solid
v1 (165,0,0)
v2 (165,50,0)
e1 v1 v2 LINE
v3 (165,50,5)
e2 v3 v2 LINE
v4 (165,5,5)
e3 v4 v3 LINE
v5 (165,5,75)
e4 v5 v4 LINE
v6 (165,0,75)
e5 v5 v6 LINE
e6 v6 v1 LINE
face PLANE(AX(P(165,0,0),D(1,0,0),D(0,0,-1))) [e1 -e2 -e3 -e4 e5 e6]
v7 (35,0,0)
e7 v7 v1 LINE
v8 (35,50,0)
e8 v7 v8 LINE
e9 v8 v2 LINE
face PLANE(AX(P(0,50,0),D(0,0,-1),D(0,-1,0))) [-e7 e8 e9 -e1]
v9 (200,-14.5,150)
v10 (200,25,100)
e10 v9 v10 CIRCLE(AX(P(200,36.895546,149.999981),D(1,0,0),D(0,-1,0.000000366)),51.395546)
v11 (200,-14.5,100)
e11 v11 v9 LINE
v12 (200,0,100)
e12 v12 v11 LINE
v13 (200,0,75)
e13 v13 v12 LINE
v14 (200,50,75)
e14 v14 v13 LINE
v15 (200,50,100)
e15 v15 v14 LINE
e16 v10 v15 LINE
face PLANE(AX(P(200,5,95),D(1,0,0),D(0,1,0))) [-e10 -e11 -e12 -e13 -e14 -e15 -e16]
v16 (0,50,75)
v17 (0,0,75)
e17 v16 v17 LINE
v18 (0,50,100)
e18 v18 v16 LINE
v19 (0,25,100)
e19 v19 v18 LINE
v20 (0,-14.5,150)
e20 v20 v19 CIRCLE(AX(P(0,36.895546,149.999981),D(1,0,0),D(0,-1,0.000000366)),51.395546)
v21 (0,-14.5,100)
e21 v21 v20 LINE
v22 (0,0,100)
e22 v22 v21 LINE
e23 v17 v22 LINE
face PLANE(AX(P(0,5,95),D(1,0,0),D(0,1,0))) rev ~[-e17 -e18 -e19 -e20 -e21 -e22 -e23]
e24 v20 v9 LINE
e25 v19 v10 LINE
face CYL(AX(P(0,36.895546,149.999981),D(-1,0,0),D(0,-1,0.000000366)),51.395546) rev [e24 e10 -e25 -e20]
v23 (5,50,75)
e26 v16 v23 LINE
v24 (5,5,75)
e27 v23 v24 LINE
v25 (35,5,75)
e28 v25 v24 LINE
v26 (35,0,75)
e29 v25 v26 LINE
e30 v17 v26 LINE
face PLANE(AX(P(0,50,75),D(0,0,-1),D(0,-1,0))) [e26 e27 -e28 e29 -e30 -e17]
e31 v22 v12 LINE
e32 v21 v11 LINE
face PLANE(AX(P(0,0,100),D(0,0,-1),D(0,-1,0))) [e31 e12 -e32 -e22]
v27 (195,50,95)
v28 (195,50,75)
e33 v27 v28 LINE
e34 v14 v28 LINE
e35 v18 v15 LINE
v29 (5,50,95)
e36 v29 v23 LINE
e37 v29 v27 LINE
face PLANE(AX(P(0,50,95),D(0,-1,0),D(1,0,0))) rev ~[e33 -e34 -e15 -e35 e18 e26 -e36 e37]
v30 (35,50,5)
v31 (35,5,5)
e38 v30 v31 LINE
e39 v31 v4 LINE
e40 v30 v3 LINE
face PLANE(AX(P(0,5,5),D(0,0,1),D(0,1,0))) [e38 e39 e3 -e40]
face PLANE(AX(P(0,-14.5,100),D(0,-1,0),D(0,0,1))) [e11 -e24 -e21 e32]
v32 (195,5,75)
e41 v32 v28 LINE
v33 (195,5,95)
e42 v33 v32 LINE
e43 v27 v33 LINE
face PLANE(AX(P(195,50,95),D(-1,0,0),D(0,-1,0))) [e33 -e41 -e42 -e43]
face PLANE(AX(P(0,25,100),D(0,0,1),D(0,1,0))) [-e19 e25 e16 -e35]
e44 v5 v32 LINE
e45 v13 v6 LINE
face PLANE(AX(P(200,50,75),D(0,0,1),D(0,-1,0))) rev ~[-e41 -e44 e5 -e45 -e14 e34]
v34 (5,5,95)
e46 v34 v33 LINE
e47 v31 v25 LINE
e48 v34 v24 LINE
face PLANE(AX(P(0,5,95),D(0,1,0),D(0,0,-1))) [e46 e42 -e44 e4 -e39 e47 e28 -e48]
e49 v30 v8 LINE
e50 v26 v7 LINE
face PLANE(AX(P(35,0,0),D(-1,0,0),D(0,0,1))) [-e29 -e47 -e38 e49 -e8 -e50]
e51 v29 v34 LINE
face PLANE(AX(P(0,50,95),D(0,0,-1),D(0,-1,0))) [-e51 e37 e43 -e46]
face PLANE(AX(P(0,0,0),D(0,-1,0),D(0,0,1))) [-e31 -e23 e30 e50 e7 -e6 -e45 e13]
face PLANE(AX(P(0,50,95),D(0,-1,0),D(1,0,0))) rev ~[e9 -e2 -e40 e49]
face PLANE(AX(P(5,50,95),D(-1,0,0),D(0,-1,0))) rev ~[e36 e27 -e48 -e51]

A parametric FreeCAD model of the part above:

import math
import FreeCAD as App
import Part
import Sketcher
Q = App.Units.Quantity

doc = App.newDocument("Part")
params = doc.addObject("Spreadsheet::Sheet", "Params")
for row, (alias, value) in enumerate([
    ("sketch1_width", "50 mm"),
    ("sketch1_width2", "45 mm"),
    ("sketch1_height", "90 mm"),
    ("sketch1_width3", "14.5 mm"),
    ("sketch1_width4", "25 mm"),
    ("pad1_length", "200 mm"),
    ("sketch2_width", "5 mm"),
    ("sketch2_height", "45 mm"),
    ("pad2_length", "90 mm"),
    ("sketch3_width", "5 mm"),
    ("sketch3_height", "45 mm"),
    ("pad3_length", "90 mm"),
    ("sketch4_height", "75 mm"),
    ("sketch4_width", "50 mm"),
    ("pocket1_length", "35 mm"),
    ("sketch5_height", "75 mm"),
    ("sketch5_width", "50 mm"),
    ("pocket2_length", "35 mm"),
], start=1):
    params.set(f"A{row}", alias)
    params.set(f"B{row}", "=" + value)
    params.setAlias(f"B{row}", alias)

body = doc.addObject("PartDesign::Body", "Body")

sketch1 = body.newObject("Sketcher::SketchObject", "Sketch")
sketch1.AttachmentSupport = (doc.getObject("YZ_Plane"), [""])
sketch1.MapMode = "FlatFace"
sketch1.addGeometry([
    Part.LineSegment(App.Vector(0, 100, 0), App.Vector(0, 0, 0)),
    Part.LineSegment(App.Vector(0, 0, 0), App.Vector(50, 0, 0)),
    Part.LineSegment(App.Vector(50, 0, 0), App.Vector(50, 5, 0)),
    Part.LineSegment(App.Vector(50, 5, 0), App.Vector(5, 5, 0)),
    Part.LineSegment(App.Vector(5, 5, 0), App.Vector(5, 95, 0)),
    Part.LineSegment(App.Vector(5, 95, 0), App.Vector(50, 95, 0)),
    Part.LineSegment(App.Vector(50, 95, 0), App.Vector(50, 100, 0)),
    Part.LineSegment(App.Vector(50, 100, 0), App.Vector(25, 100, 0)),
    Part.ArcOfCircle(Part.Circle(App.Vector(36.8956, 150, 0), App.Vector(0, 0, 1), 51.3956), math.radians(180), math.radians(256.617438)),
    Part.LineSegment(App.Vector(-14.5, 150, 0), App.Vector(-14.5, 100, 0)),
    Part.LineSegment(App.Vector(-14.5, 100, 0), App.Vector(0, 100, 0)),
], False)
sketch1.addConstraint([
    Sketcher.Constraint("Coincident", 0, 2, 1, 1),
    Sketcher.Constraint("Coincident", 1, 2, 2, 1),
    Sketcher.Constraint("Coincident", 2, 2, 3, 1),
    Sketcher.Constraint("Coincident", 3, 2, 4, 1),
    Sketcher.Constraint("Coincident", 4, 2, 5, 1),
    Sketcher.Constraint("Coincident", 5, 2, 6, 1),
    Sketcher.Constraint("Coincident", 6, 2, 7, 1),
    Sketcher.Constraint("Coincident", 7, 2, 8, 2),
    Sketcher.Constraint("Tangent", 8, 1, 9, 1),
    Sketcher.Constraint("Coincident", 9, 2, 10, 1),
    Sketcher.Constraint("Coincident", 10, 2, 0, 1),
    Sketcher.Constraint("Vertical", 0),
    Sketcher.Constraint("Horizontal", 1),
    Sketcher.Constraint("Vertical", 2),
    Sketcher.Constraint("Horizontal", 3),
    Sketcher.Constraint("Vertical", 4),
    Sketcher.Constraint("Horizontal", 5),
    Sketcher.Constraint("Vertical", 6),
    Sketcher.Constraint("Horizontal", 7),
    Sketcher.Constraint("Vertical", 9),
    Sketcher.Constraint("Horizontal", 10),
    Sketcher.Constraint("Coincident", 0, 2, -1, 1),
    Sketcher.Constraint("Horizontal", 7, 2, 9, 2),
    Sketcher.Constraint("Vertical", 2, 2, 5, 2),
    Sketcher.Constraint("Equal", 2, 6),
    Sketcher.Constraint("Equal", 1, 9),
    Sketcher.Constraint("DistanceX", 1, 1, 1, 2, Q("50 mm")),
    Sketcher.Constraint("DistanceX", 3, 2, 3, 1, Q("45 mm")),
    Sketcher.Constraint("DistanceY", 4, 1, 4, 2, Q("90 mm")),
    Sketcher.Constraint("DistanceX", 10, 1, 10, 2, Q("14.5 mm")),
    Sketcher.Constraint("DistanceX", 7, 2, 7, 1, Q("25 mm")),
    Sketcher.Constraint("DistanceY", 0, 2, 0, 1, Q("100 mm")),
])
sketch1.setExpression("Constraints[26]", "Params.sketch1_width")
sketch1.setExpression("Constraints[27]", "Params.sketch1_width2")
sketch1.setExpression("Constraints[28]", "Params.sketch1_height")
sketch1.setExpression("Constraints[29]", "Params.sketch1_width3")
sketch1.setExpression("Constraints[30]", "Params.sketch1_width4")
pad1 = body.newObject("PartDesign::Pad", "Pad")
pad1.Profile = sketch1
pad1.setExpression("Length", "Params.pad1_length")

sketch2 = body.newObject("Sketcher::SketchObject", "Sketch001")
sketch2.AttachmentSupport = (doc.getObject("XY_Plane"), [""])
sketch2.MapMode = "FlatFace"
sketch2.AttachmentOffset = App.Placement(App.Vector(0, 0, 95), App.Rotation())
sketch2.addGeometry([
    Part.LineSegment(App.Vector(195, 5, 0), App.Vector(195, 50, 0)),
    Part.LineSegment(App.Vector(195, 50, 0), App.Vector(200, 50, 0)),
    Part.LineSegment(App.Vector(200, 50, 0), App.Vector(200, 5, 0)),
    Part.LineSegment(App.Vector(200, 5, 0), App.Vector(195, 5, 0)),
], False)
sketch2.addConstraint([
    Sketcher.Constraint("Coincident", 0, 2, 1, 1),
    Sketcher.Constraint("Coincident", 1, 2, 2, 1),
    Sketcher.Constraint("Coincident", 2, 2, 3, 1),
    Sketcher.Constraint("Coincident", 3, 2, 0, 1),
    Sketcher.Constraint("Vertical", 0),
    Sketcher.Constraint("Horizontal", 1),
    Sketcher.Constraint("Vertical", 2),
    Sketcher.Constraint("Horizontal", 3),
    Sketcher.Constraint("DistanceX", 1, 1, 1, 2, Q("5 mm")),
    Sketcher.Constraint("DistanceY", -1, 1, 2, 2, Q("5 mm")),
    Sketcher.Constraint("DistanceY", 0, 1, 0, 2, Q("45 mm")),
    Sketcher.Constraint("DistanceX", -1, 1, 0, 2, Q("195 mm")),
])
sketch2.setExpression("Constraints[8]", "Params.sketch2_width")
sketch2.setExpression("Constraints[10]", "Params.sketch2_height")
pad2 = body.newObject("PartDesign::Pad", "Pad001")
pad2.Profile = sketch2
pad2.setExpression("Length", "Params.pad2_length")
pad2.Reversed = True

sketch3 = body.newObject("Sketcher::SketchObject", "Sketch002")
sketch3.AttachmentSupport = (doc.getObject("XY_Plane"), [""])
sketch3.MapMode = "FlatFace"
sketch3.AttachmentOffset = App.Placement(App.Vector(0, 0, 95), App.Rotation())
sketch3.addGeometry([
    Part.LineSegment(App.Vector(0, 5, 0), App.Vector(0, 50, 0)),
    Part.LineSegment(App.Vector(0, 50, 0), App.Vector(5, 50, 0)),
    Part.LineSegment(App.Vector(5, 50, 0), App.Vector(5, 5, 0)),
    Part.LineSegment(App.Vector(5, 5, 0), App.Vector(0, 5, 0)),
], False)
sketch3.addConstraint([
    Sketcher.Constraint("Coincident", 0, 2, 1, 1),
    Sketcher.Constraint("Coincident", 1, 2, 2, 1),
    Sketcher.Constraint("Coincident", 2, 2, 3, 1),
    Sketcher.Constraint("Coincident", 3, 2, 0, 1),
    Sketcher.Constraint("Vertical", 0),
    Sketcher.Constraint("Horizontal", 1),
    Sketcher.Constraint("Vertical", 2),
    Sketcher.Constraint("Horizontal", 3),
    Sketcher.Constraint("PointOnObject", 0, 2, -2),
    Sketcher.Constraint("DistanceX", 1, 1, 1, 2, Q("5 mm")),
    Sketcher.Constraint("DistanceY", -1, 1, 2, 2, Q("5 mm")),
    Sketcher.Constraint("DistanceY", 0, 1, 0, 2, Q("45 mm")),
])
sketch3.setExpression("Constraints[9]", "Params.sketch3_width")
sketch3.setExpression("Constraints[11]", "Params.sketch3_height")
pad3 = body.newObject("PartDesign::Pad", "Pad002")
pad3.Profile = sketch3
pad3.setExpression("Length", "Params.pad3_length")
pad3.Reversed = True

sketch4 = body.newObject("Sketcher::SketchObject", "Sketch003")
sketch4.AttachmentSupport = (doc.getObject("YZ_Plane"), [""])
sketch4.MapMode = "FlatFace"
sketch4.AttachmentOffset = App.Placement(App.Vector(0, 0, 200), App.Rotation())
sketch4.addGeometry([
    Part.LineSegment(App.Vector(0, 0, 0), App.Vector(50, 0, 0)),
    Part.LineSegment(App.Vector(50, 0, 0), App.Vector(50, 75, 0)),
    Part.LineSegment(App.Vector(50, 75, 0), App.Vector(0, 75, 0)),
    Part.LineSegment(App.Vector(0, 75, 0), App.Vector(0, 0, 0)),
], False)
sketch4.addConstraint([
    Sketcher.Constraint("Coincident", 0, 2, 1, 1),
    Sketcher.Constraint("Coincident", 1, 2, 2, 1),
    Sketcher.Constraint("Coincident", 2, 2, 3, 1),
    Sketcher.Constraint("Coincident", 3, 2, 0, 1),
    Sketcher.Constraint("Horizontal", 0),
    Sketcher.Constraint("Vertical", 1),
    Sketcher.Constraint("Horizontal", 2),
    Sketcher.Constraint("Vertical", 3),
    Sketcher.Constraint("Coincident", 3, 2, -1, 1),
    Sketcher.Constraint("DistanceY", 1, 1, 1, 2, Q("75 mm")),
    Sketcher.Constraint("DistanceX", 0, 1, 0, 2, Q("50 mm")),
])
sketch4.setExpression("Constraints[9]", "Params.sketch4_height")
sketch4.setExpression("Constraints[10]", "Params.sketch4_width")
pocket1 = body.newObject("PartDesign::Pocket", "Pocket")
pocket1.Profile = sketch4
pocket1.setExpression("Length", "Params.pocket1_length")

sketch5 = body.newObject("Sketcher::SketchObject", "Sketch004")
sketch5.AttachmentSupport = (doc.getObject("YZ_Plane"), [""])
sketch5.MapMode = "FlatFace"
sketch5.addGeometry([
    Part.LineSegment(App.Vector(50, 0, 0), App.Vector(0, 0, 0)),
    Part.LineSegment(App.Vector(0, 0, 0), App.Vector(0, 75, 0)),
    Part.LineSegment(App.Vector(0, 75, 0), App.Vector(50, 75, 0)),
    Part.LineSegment(App.Vector(50, 75, 0), App.Vector(50, 0, 0)),
], False)
sketch5.addConstraint([
    Sketcher.Constraint("Coincident", 0, 2, 1, 1),
    Sketcher.Constraint("Coincident", 1, 2, 2, 1),
    Sketcher.Constraint("Coincident", 2, 2, 3, 1),
    Sketcher.Constraint("Coincident", 3, 2, 0, 1),
    Sketcher.Constraint("Horizontal", 0),
    Sketcher.Constraint("Vertical", 1),
    Sketcher.Constraint("Horizontal", 2),
    Sketcher.Constraint("Vertical", 3),
    Sketcher.Constraint("Coincident", 0, 2, -1, 1),
    Sketcher.Constraint("DistanceY", 1, 1, 1, 2, Q("75 mm")),
    Sketcher.Constraint("DistanceX", 0, 2, 0, 1, Q("50 mm")),
])
sketch5.setExpression("Constraints[9]", "Params.sketch5_height")
sketch5.setExpression("Constraints[10]", "Params.sketch5_width")
pocket2 = body.newObject("PartDesign::Pocket", "Pocket001")
pocket2.Profile = sketch5
pocket2.setExpression("Length", "Params.pocket2_length")
pocket2.Reversed = True

doc.recompute()
